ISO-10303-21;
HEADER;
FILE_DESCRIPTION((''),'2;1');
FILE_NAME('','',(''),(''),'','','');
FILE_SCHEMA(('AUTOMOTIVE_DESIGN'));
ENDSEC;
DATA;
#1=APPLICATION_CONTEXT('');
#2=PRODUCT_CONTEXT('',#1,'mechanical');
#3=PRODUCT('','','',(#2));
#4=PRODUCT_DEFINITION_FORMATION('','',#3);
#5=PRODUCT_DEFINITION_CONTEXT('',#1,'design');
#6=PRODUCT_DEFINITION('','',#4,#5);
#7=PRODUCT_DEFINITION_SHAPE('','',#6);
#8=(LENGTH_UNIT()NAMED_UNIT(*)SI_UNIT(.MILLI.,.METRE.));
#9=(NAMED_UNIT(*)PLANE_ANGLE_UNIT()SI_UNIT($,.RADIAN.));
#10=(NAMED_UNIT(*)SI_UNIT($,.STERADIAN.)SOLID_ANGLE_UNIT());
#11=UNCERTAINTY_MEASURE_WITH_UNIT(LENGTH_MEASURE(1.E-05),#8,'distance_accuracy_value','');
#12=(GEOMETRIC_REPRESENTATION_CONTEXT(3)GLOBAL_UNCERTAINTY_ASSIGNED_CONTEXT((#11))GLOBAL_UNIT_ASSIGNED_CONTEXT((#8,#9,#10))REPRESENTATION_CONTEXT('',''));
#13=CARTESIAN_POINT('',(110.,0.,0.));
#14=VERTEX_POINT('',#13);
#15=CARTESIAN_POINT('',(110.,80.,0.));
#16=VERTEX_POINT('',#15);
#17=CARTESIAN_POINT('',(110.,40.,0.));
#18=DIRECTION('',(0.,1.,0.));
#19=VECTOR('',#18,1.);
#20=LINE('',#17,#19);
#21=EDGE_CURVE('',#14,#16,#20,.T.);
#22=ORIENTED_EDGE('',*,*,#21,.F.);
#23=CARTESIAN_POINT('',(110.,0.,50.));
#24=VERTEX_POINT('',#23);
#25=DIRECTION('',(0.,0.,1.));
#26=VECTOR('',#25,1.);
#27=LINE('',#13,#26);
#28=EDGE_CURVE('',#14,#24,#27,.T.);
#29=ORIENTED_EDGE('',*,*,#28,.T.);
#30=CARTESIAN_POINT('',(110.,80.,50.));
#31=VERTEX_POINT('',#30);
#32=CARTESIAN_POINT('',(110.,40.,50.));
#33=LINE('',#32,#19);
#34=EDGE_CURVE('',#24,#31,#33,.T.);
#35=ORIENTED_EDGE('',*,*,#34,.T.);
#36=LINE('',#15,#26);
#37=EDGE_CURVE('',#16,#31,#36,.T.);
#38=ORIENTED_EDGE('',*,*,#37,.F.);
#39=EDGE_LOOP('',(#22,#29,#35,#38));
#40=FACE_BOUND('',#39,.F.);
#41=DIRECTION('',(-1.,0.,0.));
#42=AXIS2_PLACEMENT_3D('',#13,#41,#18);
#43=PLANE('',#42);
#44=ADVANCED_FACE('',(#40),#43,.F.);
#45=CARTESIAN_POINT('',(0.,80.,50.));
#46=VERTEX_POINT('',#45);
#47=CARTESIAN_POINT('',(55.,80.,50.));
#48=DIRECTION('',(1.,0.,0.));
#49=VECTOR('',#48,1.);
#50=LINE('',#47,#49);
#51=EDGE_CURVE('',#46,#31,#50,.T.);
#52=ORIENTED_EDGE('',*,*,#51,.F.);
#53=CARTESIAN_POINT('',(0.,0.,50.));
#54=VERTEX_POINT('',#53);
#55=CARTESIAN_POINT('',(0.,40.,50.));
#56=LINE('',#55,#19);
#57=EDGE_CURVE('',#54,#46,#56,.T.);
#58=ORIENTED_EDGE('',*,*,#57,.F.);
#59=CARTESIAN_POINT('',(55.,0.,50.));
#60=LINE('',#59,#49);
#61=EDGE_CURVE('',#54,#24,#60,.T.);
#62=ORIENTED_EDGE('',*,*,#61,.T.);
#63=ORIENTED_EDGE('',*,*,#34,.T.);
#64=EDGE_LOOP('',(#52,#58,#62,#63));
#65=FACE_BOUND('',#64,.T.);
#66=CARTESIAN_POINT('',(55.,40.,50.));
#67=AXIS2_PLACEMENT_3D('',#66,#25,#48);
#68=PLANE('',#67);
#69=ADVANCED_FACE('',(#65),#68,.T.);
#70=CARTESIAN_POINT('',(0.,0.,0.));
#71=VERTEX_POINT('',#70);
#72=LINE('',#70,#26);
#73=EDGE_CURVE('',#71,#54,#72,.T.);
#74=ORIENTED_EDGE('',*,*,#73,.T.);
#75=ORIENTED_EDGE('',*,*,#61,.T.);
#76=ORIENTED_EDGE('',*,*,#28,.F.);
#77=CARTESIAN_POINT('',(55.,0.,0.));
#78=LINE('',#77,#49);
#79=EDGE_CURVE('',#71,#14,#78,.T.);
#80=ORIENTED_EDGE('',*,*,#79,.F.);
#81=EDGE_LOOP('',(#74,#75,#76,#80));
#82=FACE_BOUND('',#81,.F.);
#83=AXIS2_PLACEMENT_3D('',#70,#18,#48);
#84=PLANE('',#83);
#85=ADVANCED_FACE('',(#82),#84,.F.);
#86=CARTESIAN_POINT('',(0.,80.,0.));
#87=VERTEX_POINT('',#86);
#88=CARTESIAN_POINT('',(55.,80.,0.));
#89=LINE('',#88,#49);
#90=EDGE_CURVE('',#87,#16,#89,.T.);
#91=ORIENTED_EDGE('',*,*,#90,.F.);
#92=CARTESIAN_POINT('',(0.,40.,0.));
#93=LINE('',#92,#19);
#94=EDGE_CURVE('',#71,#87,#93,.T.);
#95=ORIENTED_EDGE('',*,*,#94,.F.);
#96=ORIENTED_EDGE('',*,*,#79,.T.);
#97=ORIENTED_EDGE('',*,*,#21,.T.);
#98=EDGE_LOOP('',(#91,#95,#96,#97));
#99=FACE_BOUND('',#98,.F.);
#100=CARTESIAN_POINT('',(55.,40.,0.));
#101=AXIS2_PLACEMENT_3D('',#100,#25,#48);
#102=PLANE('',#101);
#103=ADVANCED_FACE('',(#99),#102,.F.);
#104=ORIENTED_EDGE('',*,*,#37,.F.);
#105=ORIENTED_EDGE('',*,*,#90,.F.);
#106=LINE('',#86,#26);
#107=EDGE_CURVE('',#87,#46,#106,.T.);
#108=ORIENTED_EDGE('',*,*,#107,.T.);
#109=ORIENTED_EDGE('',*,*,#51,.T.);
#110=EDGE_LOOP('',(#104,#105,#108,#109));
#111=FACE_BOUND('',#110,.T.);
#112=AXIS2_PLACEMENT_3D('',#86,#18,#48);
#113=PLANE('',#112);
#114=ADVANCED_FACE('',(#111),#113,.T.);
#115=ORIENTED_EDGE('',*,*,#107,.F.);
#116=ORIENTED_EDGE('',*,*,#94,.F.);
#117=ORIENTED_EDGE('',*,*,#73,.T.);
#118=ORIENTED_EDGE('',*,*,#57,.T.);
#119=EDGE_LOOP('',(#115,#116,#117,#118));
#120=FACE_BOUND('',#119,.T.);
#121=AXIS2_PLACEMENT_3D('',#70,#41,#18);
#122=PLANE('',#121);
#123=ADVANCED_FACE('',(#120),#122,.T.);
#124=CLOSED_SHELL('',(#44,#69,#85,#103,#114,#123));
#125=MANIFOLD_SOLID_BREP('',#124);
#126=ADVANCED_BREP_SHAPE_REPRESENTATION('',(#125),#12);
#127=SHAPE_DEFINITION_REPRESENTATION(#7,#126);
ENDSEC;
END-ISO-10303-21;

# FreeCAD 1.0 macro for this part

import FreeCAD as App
import Part
import Sketcher

V = App.Vector

doc = App.newDocument("Part")
body = doc.addObject("PartDesign::Body", "Body")

sketch1 = body.newObject("Sketcher::SketchObject", "Sketch")
sketch1.AttachmentSupport = (doc.getObject("XY_Plane"), [""])
sketch1.MapMode = "FlatFace"
sketch1.addGeometry([
    Part.LineSegment(V(0, 80, 0), V(0, 0, 0)),
    Part.LineSegment(V(0, 0, 0), V(110, 0, 0)),
    Part.LineSegment(V(110, 0, 0), V(110, 80, 0)),
    Part.LineSegment(V(110, 80, 0), V(0, 80, 0)),
], False)
sketch1.addConstraint([
    Sketcher.Constraint("Coincident", 0, 2, 1, 1),
    Sketcher.Constraint("Coincident", 1, 2, 2, 1),
    Sketcher.Constraint("Coincident", 2, 2, 3, 1),
    Sketcher.Constraint("Coincident", 3, 2, 0, 1),
    Sketcher.Constraint("Vertical", 0),
    Sketcher.Constraint("Horizontal", 1),
    Sketcher.Constraint("Vertical", 2),
    Sketcher.Constraint("Horizontal", 3),
    Sketcher.Constraint("Coincident", 0, 2, -1, 1),
    Sketcher.Constraint("DistanceX", 1, 1, 1, 2, 110.0),
    Sketcher.Constraint("DistanceY", 0, 2, 0, 1, 80.0),
])
pad1 = body.newObject("PartDesign::Pad", "Pad")
pad1.Profile = sketch1
pad1.Length = 50

doc.recompute()
